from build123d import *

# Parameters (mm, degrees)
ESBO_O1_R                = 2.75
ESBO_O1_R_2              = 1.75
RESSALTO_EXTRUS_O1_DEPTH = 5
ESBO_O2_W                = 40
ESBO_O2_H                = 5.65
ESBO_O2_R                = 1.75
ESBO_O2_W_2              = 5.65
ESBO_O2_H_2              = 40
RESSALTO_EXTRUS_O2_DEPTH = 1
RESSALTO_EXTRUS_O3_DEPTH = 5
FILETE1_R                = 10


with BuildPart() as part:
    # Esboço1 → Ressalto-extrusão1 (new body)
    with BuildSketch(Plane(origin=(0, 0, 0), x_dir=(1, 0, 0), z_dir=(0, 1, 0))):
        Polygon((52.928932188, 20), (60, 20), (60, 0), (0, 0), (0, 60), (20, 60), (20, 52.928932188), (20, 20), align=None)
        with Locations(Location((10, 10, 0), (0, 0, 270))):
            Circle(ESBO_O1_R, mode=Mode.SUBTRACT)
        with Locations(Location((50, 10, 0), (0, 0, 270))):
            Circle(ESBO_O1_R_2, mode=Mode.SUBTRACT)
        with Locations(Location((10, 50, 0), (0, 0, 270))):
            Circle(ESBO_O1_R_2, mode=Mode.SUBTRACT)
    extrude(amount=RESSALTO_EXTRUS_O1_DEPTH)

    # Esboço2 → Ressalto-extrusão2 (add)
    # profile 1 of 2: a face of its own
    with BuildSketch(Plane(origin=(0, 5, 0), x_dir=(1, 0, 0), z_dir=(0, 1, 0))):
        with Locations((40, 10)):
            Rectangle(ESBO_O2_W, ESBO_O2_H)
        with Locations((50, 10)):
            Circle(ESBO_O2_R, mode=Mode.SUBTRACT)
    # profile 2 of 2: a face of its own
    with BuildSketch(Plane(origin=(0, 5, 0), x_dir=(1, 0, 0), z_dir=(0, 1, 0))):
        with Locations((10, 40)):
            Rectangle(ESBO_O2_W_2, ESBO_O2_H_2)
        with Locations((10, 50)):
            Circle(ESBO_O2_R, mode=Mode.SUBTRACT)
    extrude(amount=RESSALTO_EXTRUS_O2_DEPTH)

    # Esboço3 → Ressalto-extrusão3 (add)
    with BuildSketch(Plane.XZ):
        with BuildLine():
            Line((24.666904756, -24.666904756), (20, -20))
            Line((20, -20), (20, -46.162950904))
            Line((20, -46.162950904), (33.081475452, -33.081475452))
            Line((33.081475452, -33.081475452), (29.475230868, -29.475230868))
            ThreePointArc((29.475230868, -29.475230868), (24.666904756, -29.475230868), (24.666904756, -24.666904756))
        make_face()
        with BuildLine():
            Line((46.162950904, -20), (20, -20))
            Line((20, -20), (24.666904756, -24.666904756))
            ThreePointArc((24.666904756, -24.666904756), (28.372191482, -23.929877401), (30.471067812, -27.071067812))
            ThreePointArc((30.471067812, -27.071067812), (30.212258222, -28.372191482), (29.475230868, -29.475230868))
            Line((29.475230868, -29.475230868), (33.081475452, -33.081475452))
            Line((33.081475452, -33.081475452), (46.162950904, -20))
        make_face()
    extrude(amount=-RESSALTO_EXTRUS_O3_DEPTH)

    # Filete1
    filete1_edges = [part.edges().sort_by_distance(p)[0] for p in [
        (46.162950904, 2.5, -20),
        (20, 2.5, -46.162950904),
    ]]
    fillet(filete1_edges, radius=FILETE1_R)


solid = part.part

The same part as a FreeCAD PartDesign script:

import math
import FreeCAD as App
import Part
import Sketcher

V = App.Vector
Q = App.Units.Quantity


def edges_at(feature, points):
    """Names of the edges that pass closest to the given points."""
    edges = feature.Shape.Edges
    near = lambda p: min(range(len(edges)), key=lambda i: edges[i].distToShape(Part.Vertex(*p))[0])
    return sorted({f"Edge{near(p) + 1}" for p in points})

doc = App.newDocument("Part")
body = doc.addObject("PartDesign::Body", "Body")

sketch1 = doc.addObject("Sketcher::SketchObject", "Sketch")
body.addObject(sketch1)
sketch1.AttachmentSupport = (doc.XZ_Plane, [""])
sketch1.MapMode = "FlatFace"
sketch1.addGeometry([
    Part.LineSegment(V(60, -20, 0), V(20, -20, 0)),
    Part.LineSegment(V(20, -20, 0), V(20, -60, 0)),
    Part.LineSegment(V(20, -60, 0), V(0, -60, 0)),
    Part.LineSegment(V(0, -60, 0), V(0, 0, 0)),
    Part.LineSegment(V(0, 0, 0), V(60, 0, 0)),
    Part.LineSegment(V(60, 0, 0), V(60, -20, 0)),
    Part.Circle(V(50, -10, 0), V(0, 0, 1), 1.75),
    Part.Circle(V(10, -10, 0), V(0, 0, 1), 2.75),
    Part.Circle(V(10, -50, 0), V(0, 0, 1), 1.75),
], False)
sketch1.addConstraint([
    Sketcher.Constraint("Coincident", 0, 2, 1, 1),
    Sketcher.Constraint("Coincident", 1, 2, 2, 1),
    Sketcher.Constraint("Coincident", 2, 2, 3, 1),
    Sketcher.Constraint("Coincident", 3, 2, 4, 1),
    Sketcher.Constraint("Coincident", 4, 2, 5, 1),
    Sketcher.Constraint("Coincident", 5, 2, 0, 1),
    Sketcher.Constraint("Horizontal", 0),
    Sketcher.Constraint("Vertical", 1),
    Sketcher.Constraint("Horizontal", 2),
    Sketcher.Constraint("Vertical", 3),
    Sketcher.Constraint("Horizontal", 4),
    Sketcher.Constraint("Vertical", 5),
    Sketcher.Constraint("Coincident", 3, 2, -1, 1),
    Sketcher.Constraint("Equal", 6, 8),
    Sketcher.Constraint("Horizontal", 6, 3, 7, 3),
    Sketcher.Constraint("Vertical", 7, 3, 8, 3),
    Sketcher.Constraint("Equal", 0, 1),
    Sketcher.Constraint("Equal", 4, 3),
    Sketcher.Constraint("Diameter", 6, Q("3.5 mm")),
    Sketcher.Constraint("Diameter", 7, Q("5.5 mm")),
    Sketcher.Constraint("DistanceX", 0, 2, 0, 1, Q("40 mm")),
    Sketcher.Constraint("DistanceX", 2, 2, 2, 1, Q("20 mm")),
    Sketcher.Constraint("DistanceX", -1, 1, 6, 3, Q("50 mm")),
    Sketcher.Constraint("DistanceY", 6, 3, -1, 1, Q("10 mm")),
    Sketcher.Constraint("DistanceX", -1, 1, 7, 3, Q("10 mm")),
    Sketcher.Constraint("DistanceY", 8, 3, -1, 1, Q("50 mm")),
])
pad1 = doc.addObject("PartDesign::Pad", "Pad")
body.addObject(pad1)
pad1.Profile = sketch1
pad1.Length = 5
pad1.Reversed = True

sketch2 = doc.addObject("Sketcher::SketchObject", "Sketch001")
body.addObject(sketch2)
sketch2.AttachmentSupport = (doc.XZ_Plane, [""])
sketch2.MapMode = "FlatFace"
sketch2.AttachmentOffset = App.Placement(V(0, 0, -5), App.Rotation())
sketch2.addGeometry([
    Part.LineSegment(V(20, -12.825, 0), V(20, -7.175, 0)),
    Part.LineSegment(V(20, -7.175, 0), V(60, -7.175, 0)),
    Part.LineSegment(V(60, -7.175, 0), V(60, -12.825, 0)),
    Part.LineSegment(V(60, -12.825, 0), V(20, -12.825, 0)),
    Part.Circle(V(50, -10, 0), V(0, 0, 1), 1.75),
    Part.LineSegment(V(7.175, -60, 0), V(7.175, -20, 0)),
    Part.LineSegment(V(7.175, -20, 0), V(12.825, -20, 0)),
    Part.LineSegment(V(12.825, -20, 0), V(12.825, -60, 0)),
    Part.LineSegment(V(12.825, -60, 0), V(7.175, -60, 0)),
    Part.Circle(V(10, -50, 0), V(0, 0, 1), 1.75),
], False)
sketch2.addConstraint([
    Sketcher.Constraint("Coincident", 0, 2, 1, 1),
    Sketcher.Constraint("Coincident", 1, 2, 2, 1),
    Sketcher.Constraint("Coincident", 2, 2, 3, 1),
    Sketcher.Constraint("Coincident", 3, 2, 0, 1),
    Sketcher.Constraint("Coincident", 5, 2, 6, 1),
    Sketcher.Constraint("Coincident", 6, 2, 7, 1),
    Sketcher.Constraint("Coincident", 7, 2, 8, 1),
    Sketcher.Constraint("Coincident", 8, 2, 5, 1),
    Sketcher.Constraint("Vertical", 0),
    Sketcher.Constraint("Horizontal", 1),
    Sketcher.Constraint("Vertical", 2),
    Sketcher.Constraint("Horizontal", 3),
    Sketcher.Constraint("Vertical", 5),
    Sketcher.Constraint("Horizontal", 6),
    Sketcher.Constraint("Vertical", 7),
    Sketcher.Constraint("Horizontal", 8),
    Sketcher.Constraint("Equal", 4, 9),
    Sketcher.Constraint("Equal", 8, 0),
    Sketcher.Constraint("Equal", 3, 5),
    Sketcher.Constraint("Diameter", 4, Q("3.5 mm")),
    Sketcher.Constraint("DistanceX", 1, 1, 1, 2, Q("40 mm")),
    Sketcher.Constraint("DistanceX", -1, 1, 4, 3, Q("50 mm")),
    Sketcher.Constraint("DistanceY", 4, 3, -1, 1, Q("10 mm")),
    Sketcher.Constraint("DistanceX", -1, 1, 9, 3, Q("10 mm")),
    Sketcher.Constraint("DistanceY", 9, 3, -1, 1, Q("50 mm")),
    Sketcher.Constraint("DistanceX", -1, 1, 0, 2, Q("20 mm")),
    Sketcher.Constraint("DistanceY", 5, 2, -1, 1, Q("20 mm")),
    Sketcher.Constraint("DistanceX", 6, 1, 6, 2, Q("5.65 mm")),
    Sketcher.Constraint("DistanceY", 0, 2, -1, 1, Q("7.175 mm")),
    Sketcher.Constraint("DistanceX", -1, 1, 5, 2, Q("7.175 mm")),
])
pad2 = doc.addObject("PartDesign::Pad", "Pad001")
body.addObject(pad2)
pad2.Profile = sketch2
pad2.Length = 1
pad2.Reversed = True

sketch3 = doc.addObject("Sketcher::SketchObject", "Sketch002")
body.addObject(sketch3)
sketch3.AttachmentSupport = (doc.XZ_Plane, [""])
sketch3.MapMode = "FlatFace"
sketch3.addGeometry([
    Part.LineSegment(V(20, -20, 0), V(20, -46.162951, 0)),
    Part.LineSegment(V(20, -46.162951, 0), V(46.162951, -20, 0)),
    Part.LineSegment(V(46.162951, -20, 0), V(20, -20, 0)),
    Part.ArcOfCircle(Part.Circle(V(27.071068, -27.071068, 0), V(0, 0, 1), 3.4), math.radians(135), math.radians(315)),
    Part.ArcOfCircle(Part.Circle(V(27.071068, -27.071068, 0), V(0, 0, 1), 3.4), math.radians(0), math.radians(135)),
    Part.ArcOfCircle(Part.Circle(V(27.071068, -27.071068, 0), V(0, 0, 1), 3.4), math.radians(-45), math.radians(0)),
], False)
sketch3.addConstraint([
    Sketcher.Constraint("Coincident", 0, 2, 1, 1),
    Sketcher.Constraint("Coincident", 1, 2, 2, 1),
    Sketcher.Constraint("Coincident", 2, 2, 0, 1),
    Sketcher.Constraint("Tangent", 3, 1, 4, 2),
    Sketcher.Constraint("Tangent", 4, 1, 5, 2),
    Sketcher.Constraint("Tangent", 5, 1, 3, 2),
    Sketcher.Constraint("Vertical", 0),
    Sketcher.Constraint("Horizontal", 2),
    Sketcher.Constraint("Horizontal", 5, 3, 4, 1),
    Sketcher.Constraint("Equal", 2, 0),
    Sketcher.Constraint("Radius", 3, Q("3.4 mm")),
    Sketcher.Constraint("Distance", 1, Q("37 mm")),
    Sketcher.Constraint("DistanceX", -1, 1, 0, 2, Q("20 mm")),
    Sketcher.Constraint("DistanceY", 1, 2, -1, 1, Q("20 mm")),
    Sketcher.Constraint("DistanceX", -1, 1, 5, 1, Q("29.475231 mm")),
    Sketcher.Constraint("DistanceY", 5, 1, -1, 1, Q("29.475231 mm")),
    Sketcher.Constraint("DistanceX", -1, 1, 3, 3, Q("27.071068 mm")),
    Sketcher.Constraint("DistanceX", -1, 1, 3, 1, Q("24.666905 mm")),
])
pad3 = doc.addObject("PartDesign::Pad", "Pad002")
body.addObject(pad3)
pad3.Profile = sketch3
pad3.Length = 5
pad3.Reversed = True
doc.recompute()

fillet = doc.addObject("PartDesign::Fillet", "Fillet")
body.addObject(fillet)
fillet.Base = (pad3, edges_at(pad3, [(46.163, 2.5, -20), (20, 2.5, -46.163)]))
fillet.Radius = 10

doc.recompute()
